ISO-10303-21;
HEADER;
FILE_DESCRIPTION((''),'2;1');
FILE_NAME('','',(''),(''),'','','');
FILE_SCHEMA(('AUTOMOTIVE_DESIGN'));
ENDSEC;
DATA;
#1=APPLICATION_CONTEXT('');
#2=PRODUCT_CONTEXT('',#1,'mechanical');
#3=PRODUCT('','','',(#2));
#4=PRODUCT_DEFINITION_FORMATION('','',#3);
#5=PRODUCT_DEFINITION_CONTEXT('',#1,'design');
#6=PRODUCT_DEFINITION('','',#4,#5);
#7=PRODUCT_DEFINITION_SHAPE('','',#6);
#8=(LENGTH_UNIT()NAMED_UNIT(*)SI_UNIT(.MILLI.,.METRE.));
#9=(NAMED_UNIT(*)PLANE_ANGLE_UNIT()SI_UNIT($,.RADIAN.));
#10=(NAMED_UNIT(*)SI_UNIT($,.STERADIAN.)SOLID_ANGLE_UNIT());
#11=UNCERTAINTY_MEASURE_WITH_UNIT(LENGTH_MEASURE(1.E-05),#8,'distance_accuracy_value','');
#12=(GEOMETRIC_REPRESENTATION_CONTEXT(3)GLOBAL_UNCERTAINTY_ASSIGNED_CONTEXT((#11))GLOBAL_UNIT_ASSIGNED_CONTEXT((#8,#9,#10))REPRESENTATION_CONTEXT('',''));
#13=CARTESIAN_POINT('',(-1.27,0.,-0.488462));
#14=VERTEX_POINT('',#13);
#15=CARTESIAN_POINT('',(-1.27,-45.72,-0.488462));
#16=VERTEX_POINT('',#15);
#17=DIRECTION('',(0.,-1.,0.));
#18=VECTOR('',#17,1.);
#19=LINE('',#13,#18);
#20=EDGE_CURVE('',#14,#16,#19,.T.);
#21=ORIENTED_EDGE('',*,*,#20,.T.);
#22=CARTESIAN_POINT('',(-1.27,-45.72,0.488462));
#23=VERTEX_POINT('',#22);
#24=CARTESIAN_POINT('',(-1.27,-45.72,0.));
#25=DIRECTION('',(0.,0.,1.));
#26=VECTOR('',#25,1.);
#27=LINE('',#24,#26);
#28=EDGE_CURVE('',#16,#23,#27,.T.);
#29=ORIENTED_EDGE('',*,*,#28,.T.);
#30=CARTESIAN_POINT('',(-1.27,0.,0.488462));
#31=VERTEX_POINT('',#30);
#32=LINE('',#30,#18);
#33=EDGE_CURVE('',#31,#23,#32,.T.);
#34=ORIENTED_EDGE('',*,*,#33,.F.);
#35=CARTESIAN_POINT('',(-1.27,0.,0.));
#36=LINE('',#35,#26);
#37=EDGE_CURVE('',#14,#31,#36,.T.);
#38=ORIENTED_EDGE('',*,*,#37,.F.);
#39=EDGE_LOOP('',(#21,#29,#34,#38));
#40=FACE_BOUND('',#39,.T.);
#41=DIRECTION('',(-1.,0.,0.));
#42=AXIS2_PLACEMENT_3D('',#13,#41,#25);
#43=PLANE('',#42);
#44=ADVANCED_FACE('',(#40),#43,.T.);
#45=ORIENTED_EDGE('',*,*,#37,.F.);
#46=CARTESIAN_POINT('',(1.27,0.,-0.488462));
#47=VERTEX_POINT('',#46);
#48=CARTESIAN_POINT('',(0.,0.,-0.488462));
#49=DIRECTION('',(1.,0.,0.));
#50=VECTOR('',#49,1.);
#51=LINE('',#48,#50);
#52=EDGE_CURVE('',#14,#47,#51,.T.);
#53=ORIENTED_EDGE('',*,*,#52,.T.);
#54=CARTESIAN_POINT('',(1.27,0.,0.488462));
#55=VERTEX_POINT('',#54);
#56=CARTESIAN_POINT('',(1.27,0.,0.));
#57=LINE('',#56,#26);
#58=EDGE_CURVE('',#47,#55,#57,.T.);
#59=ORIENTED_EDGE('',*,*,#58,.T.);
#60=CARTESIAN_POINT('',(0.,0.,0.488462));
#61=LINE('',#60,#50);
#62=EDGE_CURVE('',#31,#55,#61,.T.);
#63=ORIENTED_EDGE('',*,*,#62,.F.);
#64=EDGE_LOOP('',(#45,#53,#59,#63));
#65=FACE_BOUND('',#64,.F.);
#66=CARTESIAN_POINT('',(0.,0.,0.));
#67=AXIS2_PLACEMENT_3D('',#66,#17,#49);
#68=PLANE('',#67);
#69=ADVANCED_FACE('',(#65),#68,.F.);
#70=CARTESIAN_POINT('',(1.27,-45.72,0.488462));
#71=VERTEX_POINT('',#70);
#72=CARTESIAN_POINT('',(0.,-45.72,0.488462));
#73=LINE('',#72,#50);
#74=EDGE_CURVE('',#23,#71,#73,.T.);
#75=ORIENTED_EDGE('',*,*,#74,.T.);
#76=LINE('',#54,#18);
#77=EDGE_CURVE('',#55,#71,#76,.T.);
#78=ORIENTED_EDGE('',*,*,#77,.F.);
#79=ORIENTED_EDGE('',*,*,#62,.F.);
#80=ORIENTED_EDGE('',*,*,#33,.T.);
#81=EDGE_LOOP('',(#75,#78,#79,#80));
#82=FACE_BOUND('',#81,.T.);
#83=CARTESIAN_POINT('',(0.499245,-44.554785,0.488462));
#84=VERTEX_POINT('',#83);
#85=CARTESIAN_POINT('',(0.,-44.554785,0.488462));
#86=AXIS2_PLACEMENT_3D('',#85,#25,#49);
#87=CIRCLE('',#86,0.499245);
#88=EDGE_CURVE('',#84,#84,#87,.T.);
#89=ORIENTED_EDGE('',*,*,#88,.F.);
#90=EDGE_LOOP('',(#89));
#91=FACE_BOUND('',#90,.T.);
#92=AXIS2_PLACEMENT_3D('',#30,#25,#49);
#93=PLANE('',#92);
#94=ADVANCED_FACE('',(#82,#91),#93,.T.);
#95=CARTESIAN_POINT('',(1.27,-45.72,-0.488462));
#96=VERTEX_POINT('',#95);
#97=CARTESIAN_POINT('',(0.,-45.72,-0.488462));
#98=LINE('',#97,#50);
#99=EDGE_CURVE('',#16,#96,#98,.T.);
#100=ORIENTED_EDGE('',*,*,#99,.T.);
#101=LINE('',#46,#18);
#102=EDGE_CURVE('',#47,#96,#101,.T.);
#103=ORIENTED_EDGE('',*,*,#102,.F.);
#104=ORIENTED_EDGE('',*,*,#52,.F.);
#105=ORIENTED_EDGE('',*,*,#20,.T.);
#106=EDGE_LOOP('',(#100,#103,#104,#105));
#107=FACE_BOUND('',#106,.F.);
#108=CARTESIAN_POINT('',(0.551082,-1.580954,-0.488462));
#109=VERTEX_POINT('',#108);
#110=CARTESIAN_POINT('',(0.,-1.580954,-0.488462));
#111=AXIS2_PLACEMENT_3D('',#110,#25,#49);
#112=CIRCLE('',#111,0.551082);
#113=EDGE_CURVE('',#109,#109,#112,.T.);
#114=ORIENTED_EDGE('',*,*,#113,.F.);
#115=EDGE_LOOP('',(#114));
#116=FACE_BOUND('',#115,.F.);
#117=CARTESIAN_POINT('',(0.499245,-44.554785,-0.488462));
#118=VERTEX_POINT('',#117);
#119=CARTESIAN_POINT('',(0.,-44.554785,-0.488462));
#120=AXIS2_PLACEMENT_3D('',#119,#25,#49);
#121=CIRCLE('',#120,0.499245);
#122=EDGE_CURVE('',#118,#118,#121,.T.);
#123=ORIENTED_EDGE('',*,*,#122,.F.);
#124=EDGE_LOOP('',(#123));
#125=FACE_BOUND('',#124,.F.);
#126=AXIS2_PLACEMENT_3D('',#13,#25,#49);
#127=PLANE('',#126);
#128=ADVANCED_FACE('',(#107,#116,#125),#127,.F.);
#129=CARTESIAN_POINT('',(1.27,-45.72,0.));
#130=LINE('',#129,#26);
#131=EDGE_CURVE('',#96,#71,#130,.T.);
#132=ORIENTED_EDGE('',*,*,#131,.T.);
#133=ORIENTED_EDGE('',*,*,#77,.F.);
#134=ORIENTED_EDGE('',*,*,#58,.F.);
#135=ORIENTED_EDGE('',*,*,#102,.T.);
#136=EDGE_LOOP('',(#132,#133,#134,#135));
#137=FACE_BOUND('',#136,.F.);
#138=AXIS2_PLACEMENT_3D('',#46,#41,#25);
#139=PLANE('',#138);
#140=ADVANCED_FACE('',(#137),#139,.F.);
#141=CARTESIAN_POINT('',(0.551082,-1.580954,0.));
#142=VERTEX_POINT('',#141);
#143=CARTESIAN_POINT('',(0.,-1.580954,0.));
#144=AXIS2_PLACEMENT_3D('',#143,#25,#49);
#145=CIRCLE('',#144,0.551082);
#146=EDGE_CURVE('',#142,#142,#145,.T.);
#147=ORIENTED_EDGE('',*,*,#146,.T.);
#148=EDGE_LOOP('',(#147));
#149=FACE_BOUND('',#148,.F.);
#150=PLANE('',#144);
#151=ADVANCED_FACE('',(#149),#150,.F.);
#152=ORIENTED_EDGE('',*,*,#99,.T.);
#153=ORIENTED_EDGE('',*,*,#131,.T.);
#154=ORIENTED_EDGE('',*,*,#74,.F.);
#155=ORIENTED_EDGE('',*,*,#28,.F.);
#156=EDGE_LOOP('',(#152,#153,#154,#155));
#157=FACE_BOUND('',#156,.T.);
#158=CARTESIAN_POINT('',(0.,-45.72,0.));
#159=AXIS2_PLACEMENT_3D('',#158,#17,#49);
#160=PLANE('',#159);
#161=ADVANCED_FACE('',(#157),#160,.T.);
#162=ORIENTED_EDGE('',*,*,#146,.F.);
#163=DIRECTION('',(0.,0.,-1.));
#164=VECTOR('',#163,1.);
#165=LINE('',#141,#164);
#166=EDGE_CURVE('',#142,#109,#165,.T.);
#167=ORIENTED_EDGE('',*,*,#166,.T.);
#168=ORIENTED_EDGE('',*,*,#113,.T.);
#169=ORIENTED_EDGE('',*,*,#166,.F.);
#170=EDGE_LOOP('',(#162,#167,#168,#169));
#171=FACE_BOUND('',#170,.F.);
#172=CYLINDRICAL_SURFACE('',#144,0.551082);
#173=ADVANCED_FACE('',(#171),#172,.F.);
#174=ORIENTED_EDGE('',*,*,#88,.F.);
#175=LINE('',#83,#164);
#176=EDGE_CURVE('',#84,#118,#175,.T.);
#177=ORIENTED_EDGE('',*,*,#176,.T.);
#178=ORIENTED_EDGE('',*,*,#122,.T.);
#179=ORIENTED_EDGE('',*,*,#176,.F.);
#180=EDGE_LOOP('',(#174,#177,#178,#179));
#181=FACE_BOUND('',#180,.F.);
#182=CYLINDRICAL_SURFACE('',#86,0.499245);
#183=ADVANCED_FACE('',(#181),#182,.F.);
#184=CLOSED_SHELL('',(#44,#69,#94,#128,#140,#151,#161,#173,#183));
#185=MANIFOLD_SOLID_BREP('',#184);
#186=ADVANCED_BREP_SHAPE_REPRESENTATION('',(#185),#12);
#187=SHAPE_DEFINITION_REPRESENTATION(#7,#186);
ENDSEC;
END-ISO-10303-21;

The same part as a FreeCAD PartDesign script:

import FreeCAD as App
import Part
import Sketcher
Q = App.Units.Quantity

doc = App.newDocument("Part")
params = doc.addObject("Spreadsheet::Sheet", "Params")
for row, (alias, value) in enumerate([
    ("sketch1_width", "0.1 in"),
    ("pad1_length", "1.8 in"),
    ("pocket1_length", "1 in"),
    ("pocket2_length", "2 in"),
], start=1):
    params.set(f"A{row}", alias)
    params.set(f"B{row}", "=" + value)
    params.setAlias(f"B{row}", alias)

body = doc.addObject("PartDesign::Body", "Body")

sketch1 = doc.addObject("Sketcher::SketchObject", "Sketch")
body.addObject(sketch1)
sketch1.AttachmentSupport = (doc.XZ_Plane, [""])
sketch1.MapMode = "FlatFace"
sketch1.addGeometry([
    Part.LineSegment(App.Vector(-1.27, 0.488462, 0), App.Vector(-1.27, -0.488462, 0)),
    Part.LineSegment(App.Vector(-1.27, -0.488462, 0), App.Vector(1.27, -0.488462, 0)),
    Part.LineSegment(App.Vector(1.27, -0.488462, 0), App.Vector(1.27, 0.488462, 0)),
    Part.LineSegment(App.Vector(1.27, 0.488462, 0), App.Vector(-1.27, 0.488462, 0)),
], False)
sketch1.addConstraint([
    Sketcher.Constraint("Coincident", 0, 2, 1, 1),
    Sketcher.Constraint("Coincident", 1, 2, 2, 1),
    Sketcher.Constraint("Coincident", 2, 2, 3, 1),
    Sketcher.Constraint("Coincident", 3, 2, 0, 1),
    Sketcher.Constraint("Vertical", 0),
    Sketcher.Constraint("Horizontal", 1),
    Sketcher.Constraint("Vertical", 2),
    Sketcher.Constraint("Horizontal", 3),
    Sketcher.Constraint("Symmetric", 0, 2, 2, 2, -1, 1),
    Sketcher.Constraint("DistanceX", 1, 1, 1, 2, Q("0.1 in")),
    Sketcher.Constraint("DistanceY", 0, 2, 0, 1, Q("0.976924 mm")),
])
sketch1.setExpression("Constraints[9]", "Params.sketch1_width")
pad1 = doc.addObject("PartDesign::Pad", "Pad")
body.addObject(pad1)
pad1.Profile = sketch1
pad1.setExpression("Length", "Params.pad1_length")

sketch2 = doc.addObject("Sketcher::SketchObject", "Sketch001")
body.addObject(sketch2)
sketch2.AttachmentSupport = (doc.XY_Plane, [""])
sketch2.MapMode = "FlatFace"
sketch2.AttachmentOffset = App.Placement(App.Vector(0, 0, 0.488462), App.Rotation())
sketch2.addGeometry(Part.Circle(App.Vector(0, -44.554785, 0), App.Vector(0, 0, 1), 0.499245), False)
sketch2.addConstraint([
    Sketcher.Constraint("PointOnObject", 0, 3, -2),
    Sketcher.Constraint("Diameter", 0, Q("0.99849 mm")),
    Sketcher.Constraint("DistanceY", 0, 3, -1, 1, Q("44.554785 mm")),
])
pocket1 = doc.addObject("PartDesign::Pocket", "Pocket")
body.addObject(pocket1)
pocket1.Profile = sketch2
pocket1.setExpression("Length", "Params.pocket1_length")

sketch3 = doc.addObject("Sketcher::SketchObject", "Sketch002")
body.addObject(sketch3)
sketch3.AttachmentSupport = (doc.XY_Plane, [""])
sketch3.MapMode = "FlatFace"
sketch3.addGeometry(Part.Circle(App.Vector(0, -1.580954, 0), App.Vector(0, 0, 1), 0.551082), False)
sketch3.addConstraint([
    Sketcher.Constraint("PointOnObject", 0, 3, -2),
    Sketcher.Constraint("Diameter", 0, Q("1.102164 mm")),
    Sketcher.Constraint("DistanceY", 0, 3, -1, 1, Q("1.580954 mm")),
])
pocket2 = doc.addObject("PartDesign::Pocket", "Pocket001")
body.addObject(pocket2)
pocket2.Profile = sketch3
pocket2.setExpression("Length", "Params.pocket2_length")

doc.recompute()
